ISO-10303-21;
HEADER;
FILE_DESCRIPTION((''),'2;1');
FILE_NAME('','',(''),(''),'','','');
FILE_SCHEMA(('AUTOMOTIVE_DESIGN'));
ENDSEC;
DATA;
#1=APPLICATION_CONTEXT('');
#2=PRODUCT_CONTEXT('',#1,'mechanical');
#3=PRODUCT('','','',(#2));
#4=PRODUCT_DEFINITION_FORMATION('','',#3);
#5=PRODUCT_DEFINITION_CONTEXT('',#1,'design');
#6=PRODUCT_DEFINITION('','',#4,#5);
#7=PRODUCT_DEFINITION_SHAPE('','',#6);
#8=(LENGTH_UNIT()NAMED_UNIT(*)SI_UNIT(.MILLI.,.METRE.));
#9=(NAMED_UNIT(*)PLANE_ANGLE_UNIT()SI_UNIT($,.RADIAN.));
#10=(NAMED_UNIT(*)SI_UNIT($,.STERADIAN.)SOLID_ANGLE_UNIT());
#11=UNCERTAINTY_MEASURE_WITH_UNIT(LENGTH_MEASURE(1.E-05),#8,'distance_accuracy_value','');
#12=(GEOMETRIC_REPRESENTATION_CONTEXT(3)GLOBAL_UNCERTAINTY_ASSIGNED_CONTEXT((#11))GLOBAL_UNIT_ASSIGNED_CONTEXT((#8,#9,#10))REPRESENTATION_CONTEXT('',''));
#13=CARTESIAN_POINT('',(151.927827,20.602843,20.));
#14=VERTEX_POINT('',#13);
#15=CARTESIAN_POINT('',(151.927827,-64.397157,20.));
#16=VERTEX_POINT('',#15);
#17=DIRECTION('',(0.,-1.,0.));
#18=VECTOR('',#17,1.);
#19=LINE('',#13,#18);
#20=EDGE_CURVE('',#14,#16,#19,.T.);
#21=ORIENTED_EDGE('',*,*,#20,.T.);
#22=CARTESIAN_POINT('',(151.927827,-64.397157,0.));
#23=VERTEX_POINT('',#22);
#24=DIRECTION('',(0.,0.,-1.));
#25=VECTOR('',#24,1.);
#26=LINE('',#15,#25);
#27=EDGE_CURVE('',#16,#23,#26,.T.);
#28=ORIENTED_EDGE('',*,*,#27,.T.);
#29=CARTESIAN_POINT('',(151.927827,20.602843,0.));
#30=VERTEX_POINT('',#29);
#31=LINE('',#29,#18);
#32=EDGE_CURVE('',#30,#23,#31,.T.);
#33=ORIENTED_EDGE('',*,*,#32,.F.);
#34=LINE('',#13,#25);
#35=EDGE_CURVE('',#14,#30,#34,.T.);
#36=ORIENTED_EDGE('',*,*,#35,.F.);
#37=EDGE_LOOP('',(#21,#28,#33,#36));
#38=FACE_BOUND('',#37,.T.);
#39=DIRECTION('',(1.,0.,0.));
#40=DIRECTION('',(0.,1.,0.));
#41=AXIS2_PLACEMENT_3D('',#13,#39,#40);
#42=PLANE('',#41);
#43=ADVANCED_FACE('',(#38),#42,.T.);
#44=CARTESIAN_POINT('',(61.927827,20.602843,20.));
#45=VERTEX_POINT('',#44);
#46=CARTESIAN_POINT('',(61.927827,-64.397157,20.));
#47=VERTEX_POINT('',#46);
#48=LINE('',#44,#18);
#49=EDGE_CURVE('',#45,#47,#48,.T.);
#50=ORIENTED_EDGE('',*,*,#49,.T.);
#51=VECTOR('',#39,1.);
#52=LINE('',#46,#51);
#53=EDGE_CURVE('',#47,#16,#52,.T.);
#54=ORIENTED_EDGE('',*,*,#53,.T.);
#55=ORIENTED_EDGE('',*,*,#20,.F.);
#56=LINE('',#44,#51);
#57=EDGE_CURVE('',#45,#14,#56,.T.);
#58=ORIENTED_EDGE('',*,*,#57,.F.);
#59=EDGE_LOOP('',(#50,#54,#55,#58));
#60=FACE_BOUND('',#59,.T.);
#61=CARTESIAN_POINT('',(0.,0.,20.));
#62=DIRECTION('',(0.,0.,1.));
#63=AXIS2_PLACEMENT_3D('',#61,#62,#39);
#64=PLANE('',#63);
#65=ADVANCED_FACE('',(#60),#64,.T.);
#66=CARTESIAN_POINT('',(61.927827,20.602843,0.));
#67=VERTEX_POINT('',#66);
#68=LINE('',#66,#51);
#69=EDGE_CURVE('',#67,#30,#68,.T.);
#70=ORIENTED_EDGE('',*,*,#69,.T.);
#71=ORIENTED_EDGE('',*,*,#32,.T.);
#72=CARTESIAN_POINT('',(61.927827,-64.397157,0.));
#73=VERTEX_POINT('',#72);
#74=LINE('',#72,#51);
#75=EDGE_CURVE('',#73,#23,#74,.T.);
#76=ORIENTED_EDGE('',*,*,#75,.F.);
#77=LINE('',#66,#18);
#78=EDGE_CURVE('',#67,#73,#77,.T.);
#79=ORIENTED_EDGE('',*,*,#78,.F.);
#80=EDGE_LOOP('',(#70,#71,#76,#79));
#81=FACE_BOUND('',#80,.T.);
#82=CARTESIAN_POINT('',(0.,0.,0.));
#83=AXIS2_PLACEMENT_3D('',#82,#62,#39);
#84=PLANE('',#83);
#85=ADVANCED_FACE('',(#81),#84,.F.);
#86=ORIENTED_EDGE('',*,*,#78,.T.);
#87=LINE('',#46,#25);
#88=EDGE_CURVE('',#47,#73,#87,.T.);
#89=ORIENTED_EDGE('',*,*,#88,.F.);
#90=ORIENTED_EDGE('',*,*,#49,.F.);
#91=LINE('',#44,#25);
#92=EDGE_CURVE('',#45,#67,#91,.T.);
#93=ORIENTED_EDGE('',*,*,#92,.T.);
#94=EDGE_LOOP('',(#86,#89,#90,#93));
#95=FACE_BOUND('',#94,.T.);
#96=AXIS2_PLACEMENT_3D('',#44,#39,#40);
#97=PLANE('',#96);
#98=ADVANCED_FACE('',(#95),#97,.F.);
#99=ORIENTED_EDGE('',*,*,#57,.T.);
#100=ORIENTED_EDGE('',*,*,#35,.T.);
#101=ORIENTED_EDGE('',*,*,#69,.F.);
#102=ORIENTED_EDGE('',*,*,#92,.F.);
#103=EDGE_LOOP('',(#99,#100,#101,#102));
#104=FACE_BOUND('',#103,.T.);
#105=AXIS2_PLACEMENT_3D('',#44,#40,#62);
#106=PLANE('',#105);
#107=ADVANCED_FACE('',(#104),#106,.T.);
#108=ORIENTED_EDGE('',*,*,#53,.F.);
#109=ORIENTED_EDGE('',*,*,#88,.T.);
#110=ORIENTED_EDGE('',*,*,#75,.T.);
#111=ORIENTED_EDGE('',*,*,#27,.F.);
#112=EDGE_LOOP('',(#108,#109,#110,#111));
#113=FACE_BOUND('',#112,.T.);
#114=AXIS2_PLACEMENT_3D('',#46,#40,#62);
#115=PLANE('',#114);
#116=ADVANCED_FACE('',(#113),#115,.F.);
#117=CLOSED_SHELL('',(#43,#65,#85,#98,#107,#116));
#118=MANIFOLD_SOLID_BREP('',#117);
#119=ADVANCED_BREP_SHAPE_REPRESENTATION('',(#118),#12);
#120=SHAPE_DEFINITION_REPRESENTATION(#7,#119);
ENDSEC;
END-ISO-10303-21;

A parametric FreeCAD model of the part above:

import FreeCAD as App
import Part
import Sketcher

V = App.Vector

doc = App.newDocument("Part")
body = doc.addObject("PartDesign::Body", "Body")

sketch1 = body.newObject("Sketcher::SketchObject", "Sketch")
sketch1.AttachmentSupport = (doc.getObject("XY_Plane"), [""])
sketch1.MapMode = "FlatFace"
sketch1.addGeometry([
    Part.LineSegment(V(62, 21, 0), V(62, -64, 0)),
    Part.LineSegment(V(62, -64, 0), V(152, -64, 0)),
    Part.LineSegment(V(152, -64, 0), V(152, 21, 0)),
    Part.LineSegment(V(152, 21, 0), V(62, 21, 0)),
], False)
sketch1.addConstraint([
    Sketcher.Constraint("Coincident", 0, 2, 1, 1),
    Sketcher.Constraint("Coincident", 1, 2, 2, 1),
    Sketcher.Constraint("Coincident", 2, 2, 3, 1),
    Sketcher.Constraint("Coincident", 3, 2, 0, 1),
    Sketcher.Constraint("Vertical", 0),
    Sketcher.Constraint("Horizontal", 1),
    Sketcher.Constraint("Vertical", 2),
    Sketcher.Constraint("Horizontal", 3),
    Sketcher.Constraint("DistanceX", 1, 1, 1, 2, 90.0),
    Sketcher.Constraint("DistanceY", 0, 2, 0, 1, 85.0),
    Sketcher.Constraint("DistanceX", -1, 1, 0, 2, 61.927827),
    Sketcher.Constraint("DistanceY", 0, 2, -1, 1, 64.397157),
])
pad1 = body.newObject("PartDesign::Pad", "Pad")
pad1.Profile = sketch1
pad1.Length = 20

doc.recompute()
